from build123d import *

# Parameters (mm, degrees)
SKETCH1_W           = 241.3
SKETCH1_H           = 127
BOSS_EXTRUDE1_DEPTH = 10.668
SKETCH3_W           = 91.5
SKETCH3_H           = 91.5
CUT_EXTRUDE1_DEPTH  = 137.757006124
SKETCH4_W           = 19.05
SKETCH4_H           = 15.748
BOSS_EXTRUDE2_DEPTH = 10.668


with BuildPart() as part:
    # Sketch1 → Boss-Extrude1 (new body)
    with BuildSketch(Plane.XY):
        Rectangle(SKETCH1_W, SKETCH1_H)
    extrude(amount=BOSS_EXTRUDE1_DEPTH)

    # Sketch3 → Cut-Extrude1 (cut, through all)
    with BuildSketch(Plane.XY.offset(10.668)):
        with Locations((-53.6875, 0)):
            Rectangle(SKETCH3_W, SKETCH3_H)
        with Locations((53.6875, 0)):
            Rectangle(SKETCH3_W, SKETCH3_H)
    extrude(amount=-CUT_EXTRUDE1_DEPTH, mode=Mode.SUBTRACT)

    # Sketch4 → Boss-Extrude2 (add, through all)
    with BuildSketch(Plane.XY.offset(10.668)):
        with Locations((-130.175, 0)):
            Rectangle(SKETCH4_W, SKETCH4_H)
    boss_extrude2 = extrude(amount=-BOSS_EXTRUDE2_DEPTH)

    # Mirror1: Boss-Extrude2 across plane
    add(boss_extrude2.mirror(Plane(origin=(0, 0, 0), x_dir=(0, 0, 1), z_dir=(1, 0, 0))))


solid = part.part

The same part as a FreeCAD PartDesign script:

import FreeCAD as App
import Part
import Sketcher

V = App.Vector
Q = App.Units.Quantity


def add_polygon(sketch, points):
    """Adds a closed chain of lines whose ends are joined by coincident constraints."""
    first, n = sketch.GeometryCount, len(points)
    for a, b in zip(points, points[1:] + points[:1]):
        sketch.addGeometry(Part.LineSegment(App.Vector(*a, 0), App.Vector(*b, 0)), False)
    for i in range(n):
        sketch.addConstraint(Sketcher.Constraint("Coincident", first + i, 2, first + (i + 1) % n, 1))

doc = App.newDocument("Part")
params = doc.addObject("Spreadsheet::Sheet", "Params")
for row, (alias, value) in enumerate([
    ("sketch1_height", "5 in"),
    ("sketch1_width", "9.5 in"),
    ("pad1_length", "0.42 in"),
    ("sketch3_width", "0.75 in"),
    ("sketch3_height", "0.62 in"),
    ("pad2_length", "0.42 in"),
], start=1):
    params.set(f"A{row}", alias)
    params.set(f"B{row}", "=" + value)
    params.setAlias(f"B{row}", alias)

body = doc.addObject("PartDesign::Body", "Body")

# Sketch on XY plane
sketch1 = doc.addObject("Sketcher::SketchObject", "Sketch")
body.addObject(sketch1)
sketch1.AttachmentSupport = (doc.XY_Plane, [""])
sketch1.MapMode = "FlatFace"
add_polygon(sketch1, [(-120.65, 63.5), (-120.65, -63.5), (120.65, -63.5), (120.65, 63.5)])  # lines 0-3
sketch1.addConstraint([
    Sketcher.Constraint("Vertical", 0),
    Sketcher.Constraint("Horizontal", 1),
    Sketcher.Constraint("Vertical", 2),
    Sketcher.Constraint("Horizontal", 3),
    Sketcher.Constraint("Symmetric", 0, 2, 2, 2, -1, 1),
    Sketcher.Constraint("DistanceY", 0, 2, 0, 1, Q("5 in")),
    Sketcher.Constraint("DistanceX", 1, 1, 1, 2, Q("9.5 in")),
])
sketch1.setExpression("Constraints[9]", "Params.sketch1_height")
sketch1.setExpression("Constraints[10]", "Params.sketch1_width")
pad1 = doc.addObject("PartDesign::Pad", "Pad")
body.addObject(pad1)
pad1.Profile = sketch1
pad1.setExpression("Length", "Params.pad1_length")

# Sketch on XY plane
sketch2 = doc.addObject("Sketcher::SketchObject", "Sketch001")
body.addObject(sketch2)
sketch2.AttachmentSupport = (doc.XY_Plane, [""])
sketch2.MapMode = "FlatFace"
sketch2.AttachmentOffset = App.Placement(V(0, 0, 0.42 * 25.4), App.Rotation())
add_polygon(sketch2, [(-99.4375, 45.75), (-99.4375, -45.75), (-7.9375, -45.75), (-7.9375, 45.75)])  # lines 0-3
add_polygon(sketch2, [(7.9375, 45.75), (7.9375, -45.75), (99.4375, -45.75), (99.4375, 45.75)])  # lines 4-7
sketch2.addConstraint([
    Sketcher.Constraint("Vertical", 0),
    Sketcher.Constraint("Horizontal", 1),
    Sketcher.Constraint("Vertical", 2),
    Sketcher.Constraint("Horizontal", 3),
    Sketcher.Constraint("Vertical", 4),
    Sketcher.Constraint("Horizontal", 5),
    Sketcher.Constraint("Vertical", 6),
    Sketcher.Constraint("Horizontal", 7),
    Sketcher.Constraint("Symmetric", 2, 2, 4, 2, -1, 1),
    Sketcher.Constraint("Symmetric", 0, 2, 6, 2, -1, 1),
    Sketcher.Constraint("Horizontal", 1, 2, 4, 2),
    Sketcher.Constraint("Equal", 7, 0),
    Sketcher.Constraint("DistanceX", 1, 2, -1, 1, Q("0.3125 in")),
    Sketcher.Constraint("DistanceX", 1, 1, 1, 2, Q("91.5 mm")),
])
pocket1 = doc.addObject("PartDesign::Pocket", "Pocket")
body.addObject(pocket1)
pocket1.Profile = sketch2
pocket1.Type = "ThroughAll"

# Sketch on XY plane
sketch3 = doc.addObject("Sketcher::SketchObject", "Sketch002")
body.addObject(sketch3)
sketch3.AttachmentSupport = (doc.XY_Plane, [""])
sketch3.MapMode = "FlatFace"
sketch3.AttachmentOffset = App.Placement(V(0, 0, 0.42 * 25.4), App.Rotation())
add_polygon(sketch3, [(-139.7, 7.874), (-139.7, -7.874), (-120.65, -7.874), (-120.65, 7.874)])  # lines 0-3
sketch3.addConstraint([
    Sketcher.Constraint("Vertical", 0),
    Sketcher.Constraint("Horizontal", 1),
    Sketcher.Constraint("Vertical", 2),
    Sketcher.Constraint("Horizontal", 3),
    Sketcher.Constraint("DistanceX", 1, 1, 1, 2, Q("0.75 in")),
    Sketcher.Constraint("DistanceY", 0, 2, 0, 1, Q("0.62 in")),
    Sketcher.Constraint("DistanceX", 0, 2, -1, 1, Q("5.5 in")),
    Sketcher.Constraint("DistanceY", 0, 2, -1, 1, Q("0.31 in")),
])
sketch3.setExpression("Constraints[8]", "Params.sketch3_width")
sketch3.setExpression("Constraints[9]", "Params.sketch3_height")
pad2 = doc.addObject("PartDesign::Pad", "Pad001")
body.addObject(pad2)
pad2.Profile = sketch3
pad2.setExpression("Length", "Params.pad2_length")
pad2.Reversed = True
doc.recompute()

mirrored = doc.addObject("PartDesign::Mirrored", "Mirrored")
body.addObject(mirrored)
mirrored.Originals = [pad2]
mirrored.MirrorPlane = (doc.YZ_Plane, [""])
body.Tip = mirrored

doc.recompute()
